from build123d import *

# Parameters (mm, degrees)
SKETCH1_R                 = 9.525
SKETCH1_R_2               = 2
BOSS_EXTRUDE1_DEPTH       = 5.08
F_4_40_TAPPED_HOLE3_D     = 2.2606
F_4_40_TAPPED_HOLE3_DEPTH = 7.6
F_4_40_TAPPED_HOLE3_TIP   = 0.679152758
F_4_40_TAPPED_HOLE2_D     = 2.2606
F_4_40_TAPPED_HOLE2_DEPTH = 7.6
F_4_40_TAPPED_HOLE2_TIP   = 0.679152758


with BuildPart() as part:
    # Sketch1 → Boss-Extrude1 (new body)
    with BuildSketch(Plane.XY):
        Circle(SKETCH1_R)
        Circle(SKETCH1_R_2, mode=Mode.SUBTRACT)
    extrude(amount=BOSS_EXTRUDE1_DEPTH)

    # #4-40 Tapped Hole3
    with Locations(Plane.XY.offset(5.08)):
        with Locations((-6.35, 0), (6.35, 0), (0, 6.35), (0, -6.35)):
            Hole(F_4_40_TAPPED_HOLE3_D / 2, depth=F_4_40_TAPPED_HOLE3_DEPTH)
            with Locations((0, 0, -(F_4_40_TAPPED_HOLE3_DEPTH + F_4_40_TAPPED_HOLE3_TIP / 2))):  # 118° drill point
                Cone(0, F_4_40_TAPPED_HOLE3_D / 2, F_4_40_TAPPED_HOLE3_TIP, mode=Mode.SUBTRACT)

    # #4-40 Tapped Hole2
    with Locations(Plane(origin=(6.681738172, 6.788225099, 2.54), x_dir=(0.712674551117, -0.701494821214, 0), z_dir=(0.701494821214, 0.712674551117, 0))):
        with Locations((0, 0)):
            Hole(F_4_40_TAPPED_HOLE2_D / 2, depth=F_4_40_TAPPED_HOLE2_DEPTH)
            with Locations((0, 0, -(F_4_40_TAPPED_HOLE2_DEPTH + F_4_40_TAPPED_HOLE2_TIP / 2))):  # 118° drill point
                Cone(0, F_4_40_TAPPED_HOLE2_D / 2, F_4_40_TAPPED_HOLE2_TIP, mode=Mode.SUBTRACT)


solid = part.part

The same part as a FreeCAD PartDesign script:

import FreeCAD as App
import Part
import Sketcher
Q = App.Units.Quantity

doc = App.newDocument("Part")
body = doc.addObject("PartDesign::Body", "Body")

sketch1 = body.newObject("Sketcher::SketchObject", "Sketch")
sketch1.AttachmentSupport = (doc.getObject("XY_Plane"), [""])
sketch1.MapMode = "FlatFace"
sketch1.addGeometry(Part.Circle(App.Vector(0, 0, 0), App.Vector(0, 0, 1), 9.5), False)
sketch1.addGeometry(Part.Circle(App.Vector(0, 0, 0), App.Vector(0, 0, 1), 2), False)
sketch1.addConstraint(Sketcher.Constraint("Coincident", 0, 3, -1, 1))
sketch1.addConstraint(Sketcher.Constraint("Coincident", 1, 3, -1, 1))
sketch1.addConstraint(Sketcher.Constraint("Diameter", 0, Q("0.75 in")))
sketch1.addConstraint(Sketcher.Constraint("Diameter", 1, 4.0))
pad1 = body.newObject("PartDesign::Pad", "Pad")
pad1.Profile = sketch1
pad1.Length = Q("0.2 in")

sketch2 = body.newObject("Sketcher::SketchObject", "Sketch001")
sketch2.AttachmentSupport = (doc.getObject("XY_Plane"), [""])
sketch2.MapMode = "FlatFace"
sketch2.AttachmentOffset = App.Placement(App.Vector(0, 0, 0.2 * 25.4), App.Rotation())
sketch2.addGeometry(Part.Circle(App.Vector(-6.3, 0, 0), App.Vector(0, 0, 1), 1.1), False)
sketch2.addGeometry(Part.Circle(App.Vector(6.3, 0, 0), App.Vector(0, 0, 1), 1.1), False)
sketch2.addGeometry(Part.Circle(App.Vector(0, 6.3, 0), App.Vector(0, 0, 1), 1.1), False)
sketch2.addGeometry(Part.Circle(App.Vector(0, -6.3, 0), App.Vector(0, 0, 1), 1.1), False)
sketch2.addConstraint(Sketcher.Constraint("Equal", 0, 1))
sketch2.addConstraint(Sketcher.Constraint("Equal", 1, 2))
sketch2.addConstraint(Sketcher.Constraint("Equal", 2, 3))
sketch2.addConstraint(Sketcher.Constraint("Symmetric", 0, 3, 1, 3, -1, 1))
sketch2.addConstraint(Sketcher.Constraint("Symmetric", 2, 3, 3, 3, -1, 1))
sketch2.addConstraint(Sketcher.Constraint("PointOnObject", 0, 3, -1))
sketch2.addConstraint(Sketcher.Constraint("PointOnObject", 2, 3, -2))
sketch2.addConstraint(Sketcher.Constraint("Diameter", 0, Q("0.089 in")))
sketch2.addConstraint(Sketcher.Constraint("DistanceX", 0, 3, 1, 3, Q("0.5 in")))
sketch2.addConstraint(Sketcher.Constraint("DistanceY", 3, 3, 2, 3, Q("0.5 in")))
doc.recompute()
hole = body.newObject("PartDesign::Hole", "Hole")
hole.Profile = sketch2
hole.ThreadType = "None"
hole.Diameter = Q("0.089 in")
hole.DepthType = "Dimension"
hole.Depth = 7.6
hole.DrillPoint = "Angled"
hole.DrillPointAngle = 118

sketch3 = body.newObject("Sketcher::SketchObject", "Sketch002")
sketch3.Placement = App.Placement(App.Vector(6.681738, 6.788225, 0), App.Rotation(App.Vector(0.712674551, -0.701494821, 0), App.Vector(0, 0, -1), App.Vector(0.701494821, 0.712674551, 0), "ZXY"))
sketch3.addGeometry(Part.Circle(App.Vector(0, -2.5, 0), App.Vector(0, 0, 1), 1.1), False)
sketch3.addConstraint(Sketcher.Constraint("PointOnObject", 0, 3, -2))
sketch3.addConstraint(Sketcher.Constraint("Diameter", 0, Q("0.089 in")))
sketch3.addConstraint(Sketcher.Constraint("DistanceY", 0, 3, -1, 1, Q("0.1 in")))
doc.recompute()
hole2 = body.newObject("PartDesign::Hole", "Hole001")
hole2.Profile = sketch3
hole2.ThreadType = "None"
hole2.Diameter = Q("0.089 in")
hole2.DepthType = "Dimension"
hole2.Depth = 7.6
hole2.DrillPoint = "Angled"
hole2.DrillPointAngle = 118

doc.recompute()
